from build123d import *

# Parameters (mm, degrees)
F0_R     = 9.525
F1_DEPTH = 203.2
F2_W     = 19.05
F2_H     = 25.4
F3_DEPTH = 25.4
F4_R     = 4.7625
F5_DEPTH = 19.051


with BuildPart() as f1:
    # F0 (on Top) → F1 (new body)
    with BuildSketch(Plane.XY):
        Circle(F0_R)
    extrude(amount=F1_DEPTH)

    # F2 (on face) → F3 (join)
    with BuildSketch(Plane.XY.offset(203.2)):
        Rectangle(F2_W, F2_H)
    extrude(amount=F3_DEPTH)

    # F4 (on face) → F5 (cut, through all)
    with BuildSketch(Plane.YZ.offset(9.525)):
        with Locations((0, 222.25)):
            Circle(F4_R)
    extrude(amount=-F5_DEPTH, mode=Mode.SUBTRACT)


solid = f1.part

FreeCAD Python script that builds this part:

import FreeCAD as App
import Part
import Sketcher

V = App.Vector
Q = App.Units.Quantity

doc = App.newDocument("Part")
body = doc.addObject("PartDesign::Body", "Body")

# Sketch on XY plane
sketch1 = body.newObject("Sketcher::SketchObject", "Sketch")
sketch1.AttachmentSupport = (doc.getObject("XY_Plane"), [""])
sketch1.MapMode = "FlatFace"
sketch1.addGeometry(Part.Circle(V(0, 0, 0), V(0, 0, 1), 9.525), False)
sketch1.addConstraint([
    Sketcher.Constraint("Coincident", 0, 3, -1, 1),
    Sketcher.Constraint("Diameter", 0, Q("0.75 in")),
])
pad1 = body.newObject("PartDesign::Pad", "Pad")
pad1.Profile = sketch1
pad1.Length = Q("8 in")

# Sketch on XY plane
sketch2 = body.newObject("Sketcher::SketchObject", "Sketch001")
sketch2.AttachmentSupport = (doc.getObject("XY_Plane"), [""])
sketch2.MapMode = "FlatFace"
sketch2.AttachmentOffset = App.Placement(V(0, 0, 8 * 25.4), App.Rotation())
sketch2.addGeometry([
    Part.LineSegment(V(-9.525, 12.7, 0), V(-9.525, -12.7, 0)),
    Part.LineSegment(V(-9.525, -12.7, 0), V(9.525, -12.7, 0)),
    Part.LineSegment(V(9.525, -12.7, 0), V(9.525, 12.7, 0)),
    Part.LineSegment(V(9.525, 12.7, 0), V(-9.525, 12.7, 0)),
], False)
sketch2.addConstraint([
    Sketcher.Constraint("Coincident", 0, 2, 1, 1),
    Sketcher.Constraint("Coincident", 1, 2, 2, 1),
    Sketcher.Constraint("Coincident", 2, 2, 3, 1),
    Sketcher.Constraint("Coincident", 3, 2, 0, 1),
    Sketcher.Constraint("Vertical", 0),
    Sketcher.Constraint("Horizontal", 1),
    Sketcher.Constraint("Vertical", 2),
    Sketcher.Constraint("Horizontal", 3),
    Sketcher.Constraint("Symmetric", 0, 2, 2, 2, -1, 1),
    Sketcher.Constraint("DistanceY", 0, 2, 0, 1, Q("1 in")),
    Sketcher.Constraint("DistanceX", 1, 1, 1, 2, Q("0.75 in")),
])
pad2 = body.newObject("PartDesign::Pad", "Pad001")
pad2.Profile = sketch2
pad2.Length = Q("1 in")

# Sketch on YZ plane
sketch3 = body.newObject("Sketcher::SketchObject", "Sketch002")
sketch3.AttachmentSupport = (doc.getObject("YZ_Plane"), [""])
sketch3.MapMode = "FlatFace"
sketch3.AttachmentOffset = App.Placement(V(0, 0, 0.375 * 25.4), App.Rotation())
sketch3.addGeometry(Part.Circle(V(0, 222.25, 0), V(0, 0, 1), 4.7625), False)
sketch3.addConstraint([
    Sketcher.Constraint("PointOnObject", 0, 3, -2),
    Sketcher.Constraint("Diameter", 0, Q("0.375 in")),
    Sketcher.Constraint("DistanceY", -1, 1, 0, 3, Q("8.75 in")),
])
pocket1 = body.newObject("PartDesign::Pocket", "Pocket")
pocket1.Profile = sketch3
pocket1.Type = "ThroughAll"

doc.recompute()
